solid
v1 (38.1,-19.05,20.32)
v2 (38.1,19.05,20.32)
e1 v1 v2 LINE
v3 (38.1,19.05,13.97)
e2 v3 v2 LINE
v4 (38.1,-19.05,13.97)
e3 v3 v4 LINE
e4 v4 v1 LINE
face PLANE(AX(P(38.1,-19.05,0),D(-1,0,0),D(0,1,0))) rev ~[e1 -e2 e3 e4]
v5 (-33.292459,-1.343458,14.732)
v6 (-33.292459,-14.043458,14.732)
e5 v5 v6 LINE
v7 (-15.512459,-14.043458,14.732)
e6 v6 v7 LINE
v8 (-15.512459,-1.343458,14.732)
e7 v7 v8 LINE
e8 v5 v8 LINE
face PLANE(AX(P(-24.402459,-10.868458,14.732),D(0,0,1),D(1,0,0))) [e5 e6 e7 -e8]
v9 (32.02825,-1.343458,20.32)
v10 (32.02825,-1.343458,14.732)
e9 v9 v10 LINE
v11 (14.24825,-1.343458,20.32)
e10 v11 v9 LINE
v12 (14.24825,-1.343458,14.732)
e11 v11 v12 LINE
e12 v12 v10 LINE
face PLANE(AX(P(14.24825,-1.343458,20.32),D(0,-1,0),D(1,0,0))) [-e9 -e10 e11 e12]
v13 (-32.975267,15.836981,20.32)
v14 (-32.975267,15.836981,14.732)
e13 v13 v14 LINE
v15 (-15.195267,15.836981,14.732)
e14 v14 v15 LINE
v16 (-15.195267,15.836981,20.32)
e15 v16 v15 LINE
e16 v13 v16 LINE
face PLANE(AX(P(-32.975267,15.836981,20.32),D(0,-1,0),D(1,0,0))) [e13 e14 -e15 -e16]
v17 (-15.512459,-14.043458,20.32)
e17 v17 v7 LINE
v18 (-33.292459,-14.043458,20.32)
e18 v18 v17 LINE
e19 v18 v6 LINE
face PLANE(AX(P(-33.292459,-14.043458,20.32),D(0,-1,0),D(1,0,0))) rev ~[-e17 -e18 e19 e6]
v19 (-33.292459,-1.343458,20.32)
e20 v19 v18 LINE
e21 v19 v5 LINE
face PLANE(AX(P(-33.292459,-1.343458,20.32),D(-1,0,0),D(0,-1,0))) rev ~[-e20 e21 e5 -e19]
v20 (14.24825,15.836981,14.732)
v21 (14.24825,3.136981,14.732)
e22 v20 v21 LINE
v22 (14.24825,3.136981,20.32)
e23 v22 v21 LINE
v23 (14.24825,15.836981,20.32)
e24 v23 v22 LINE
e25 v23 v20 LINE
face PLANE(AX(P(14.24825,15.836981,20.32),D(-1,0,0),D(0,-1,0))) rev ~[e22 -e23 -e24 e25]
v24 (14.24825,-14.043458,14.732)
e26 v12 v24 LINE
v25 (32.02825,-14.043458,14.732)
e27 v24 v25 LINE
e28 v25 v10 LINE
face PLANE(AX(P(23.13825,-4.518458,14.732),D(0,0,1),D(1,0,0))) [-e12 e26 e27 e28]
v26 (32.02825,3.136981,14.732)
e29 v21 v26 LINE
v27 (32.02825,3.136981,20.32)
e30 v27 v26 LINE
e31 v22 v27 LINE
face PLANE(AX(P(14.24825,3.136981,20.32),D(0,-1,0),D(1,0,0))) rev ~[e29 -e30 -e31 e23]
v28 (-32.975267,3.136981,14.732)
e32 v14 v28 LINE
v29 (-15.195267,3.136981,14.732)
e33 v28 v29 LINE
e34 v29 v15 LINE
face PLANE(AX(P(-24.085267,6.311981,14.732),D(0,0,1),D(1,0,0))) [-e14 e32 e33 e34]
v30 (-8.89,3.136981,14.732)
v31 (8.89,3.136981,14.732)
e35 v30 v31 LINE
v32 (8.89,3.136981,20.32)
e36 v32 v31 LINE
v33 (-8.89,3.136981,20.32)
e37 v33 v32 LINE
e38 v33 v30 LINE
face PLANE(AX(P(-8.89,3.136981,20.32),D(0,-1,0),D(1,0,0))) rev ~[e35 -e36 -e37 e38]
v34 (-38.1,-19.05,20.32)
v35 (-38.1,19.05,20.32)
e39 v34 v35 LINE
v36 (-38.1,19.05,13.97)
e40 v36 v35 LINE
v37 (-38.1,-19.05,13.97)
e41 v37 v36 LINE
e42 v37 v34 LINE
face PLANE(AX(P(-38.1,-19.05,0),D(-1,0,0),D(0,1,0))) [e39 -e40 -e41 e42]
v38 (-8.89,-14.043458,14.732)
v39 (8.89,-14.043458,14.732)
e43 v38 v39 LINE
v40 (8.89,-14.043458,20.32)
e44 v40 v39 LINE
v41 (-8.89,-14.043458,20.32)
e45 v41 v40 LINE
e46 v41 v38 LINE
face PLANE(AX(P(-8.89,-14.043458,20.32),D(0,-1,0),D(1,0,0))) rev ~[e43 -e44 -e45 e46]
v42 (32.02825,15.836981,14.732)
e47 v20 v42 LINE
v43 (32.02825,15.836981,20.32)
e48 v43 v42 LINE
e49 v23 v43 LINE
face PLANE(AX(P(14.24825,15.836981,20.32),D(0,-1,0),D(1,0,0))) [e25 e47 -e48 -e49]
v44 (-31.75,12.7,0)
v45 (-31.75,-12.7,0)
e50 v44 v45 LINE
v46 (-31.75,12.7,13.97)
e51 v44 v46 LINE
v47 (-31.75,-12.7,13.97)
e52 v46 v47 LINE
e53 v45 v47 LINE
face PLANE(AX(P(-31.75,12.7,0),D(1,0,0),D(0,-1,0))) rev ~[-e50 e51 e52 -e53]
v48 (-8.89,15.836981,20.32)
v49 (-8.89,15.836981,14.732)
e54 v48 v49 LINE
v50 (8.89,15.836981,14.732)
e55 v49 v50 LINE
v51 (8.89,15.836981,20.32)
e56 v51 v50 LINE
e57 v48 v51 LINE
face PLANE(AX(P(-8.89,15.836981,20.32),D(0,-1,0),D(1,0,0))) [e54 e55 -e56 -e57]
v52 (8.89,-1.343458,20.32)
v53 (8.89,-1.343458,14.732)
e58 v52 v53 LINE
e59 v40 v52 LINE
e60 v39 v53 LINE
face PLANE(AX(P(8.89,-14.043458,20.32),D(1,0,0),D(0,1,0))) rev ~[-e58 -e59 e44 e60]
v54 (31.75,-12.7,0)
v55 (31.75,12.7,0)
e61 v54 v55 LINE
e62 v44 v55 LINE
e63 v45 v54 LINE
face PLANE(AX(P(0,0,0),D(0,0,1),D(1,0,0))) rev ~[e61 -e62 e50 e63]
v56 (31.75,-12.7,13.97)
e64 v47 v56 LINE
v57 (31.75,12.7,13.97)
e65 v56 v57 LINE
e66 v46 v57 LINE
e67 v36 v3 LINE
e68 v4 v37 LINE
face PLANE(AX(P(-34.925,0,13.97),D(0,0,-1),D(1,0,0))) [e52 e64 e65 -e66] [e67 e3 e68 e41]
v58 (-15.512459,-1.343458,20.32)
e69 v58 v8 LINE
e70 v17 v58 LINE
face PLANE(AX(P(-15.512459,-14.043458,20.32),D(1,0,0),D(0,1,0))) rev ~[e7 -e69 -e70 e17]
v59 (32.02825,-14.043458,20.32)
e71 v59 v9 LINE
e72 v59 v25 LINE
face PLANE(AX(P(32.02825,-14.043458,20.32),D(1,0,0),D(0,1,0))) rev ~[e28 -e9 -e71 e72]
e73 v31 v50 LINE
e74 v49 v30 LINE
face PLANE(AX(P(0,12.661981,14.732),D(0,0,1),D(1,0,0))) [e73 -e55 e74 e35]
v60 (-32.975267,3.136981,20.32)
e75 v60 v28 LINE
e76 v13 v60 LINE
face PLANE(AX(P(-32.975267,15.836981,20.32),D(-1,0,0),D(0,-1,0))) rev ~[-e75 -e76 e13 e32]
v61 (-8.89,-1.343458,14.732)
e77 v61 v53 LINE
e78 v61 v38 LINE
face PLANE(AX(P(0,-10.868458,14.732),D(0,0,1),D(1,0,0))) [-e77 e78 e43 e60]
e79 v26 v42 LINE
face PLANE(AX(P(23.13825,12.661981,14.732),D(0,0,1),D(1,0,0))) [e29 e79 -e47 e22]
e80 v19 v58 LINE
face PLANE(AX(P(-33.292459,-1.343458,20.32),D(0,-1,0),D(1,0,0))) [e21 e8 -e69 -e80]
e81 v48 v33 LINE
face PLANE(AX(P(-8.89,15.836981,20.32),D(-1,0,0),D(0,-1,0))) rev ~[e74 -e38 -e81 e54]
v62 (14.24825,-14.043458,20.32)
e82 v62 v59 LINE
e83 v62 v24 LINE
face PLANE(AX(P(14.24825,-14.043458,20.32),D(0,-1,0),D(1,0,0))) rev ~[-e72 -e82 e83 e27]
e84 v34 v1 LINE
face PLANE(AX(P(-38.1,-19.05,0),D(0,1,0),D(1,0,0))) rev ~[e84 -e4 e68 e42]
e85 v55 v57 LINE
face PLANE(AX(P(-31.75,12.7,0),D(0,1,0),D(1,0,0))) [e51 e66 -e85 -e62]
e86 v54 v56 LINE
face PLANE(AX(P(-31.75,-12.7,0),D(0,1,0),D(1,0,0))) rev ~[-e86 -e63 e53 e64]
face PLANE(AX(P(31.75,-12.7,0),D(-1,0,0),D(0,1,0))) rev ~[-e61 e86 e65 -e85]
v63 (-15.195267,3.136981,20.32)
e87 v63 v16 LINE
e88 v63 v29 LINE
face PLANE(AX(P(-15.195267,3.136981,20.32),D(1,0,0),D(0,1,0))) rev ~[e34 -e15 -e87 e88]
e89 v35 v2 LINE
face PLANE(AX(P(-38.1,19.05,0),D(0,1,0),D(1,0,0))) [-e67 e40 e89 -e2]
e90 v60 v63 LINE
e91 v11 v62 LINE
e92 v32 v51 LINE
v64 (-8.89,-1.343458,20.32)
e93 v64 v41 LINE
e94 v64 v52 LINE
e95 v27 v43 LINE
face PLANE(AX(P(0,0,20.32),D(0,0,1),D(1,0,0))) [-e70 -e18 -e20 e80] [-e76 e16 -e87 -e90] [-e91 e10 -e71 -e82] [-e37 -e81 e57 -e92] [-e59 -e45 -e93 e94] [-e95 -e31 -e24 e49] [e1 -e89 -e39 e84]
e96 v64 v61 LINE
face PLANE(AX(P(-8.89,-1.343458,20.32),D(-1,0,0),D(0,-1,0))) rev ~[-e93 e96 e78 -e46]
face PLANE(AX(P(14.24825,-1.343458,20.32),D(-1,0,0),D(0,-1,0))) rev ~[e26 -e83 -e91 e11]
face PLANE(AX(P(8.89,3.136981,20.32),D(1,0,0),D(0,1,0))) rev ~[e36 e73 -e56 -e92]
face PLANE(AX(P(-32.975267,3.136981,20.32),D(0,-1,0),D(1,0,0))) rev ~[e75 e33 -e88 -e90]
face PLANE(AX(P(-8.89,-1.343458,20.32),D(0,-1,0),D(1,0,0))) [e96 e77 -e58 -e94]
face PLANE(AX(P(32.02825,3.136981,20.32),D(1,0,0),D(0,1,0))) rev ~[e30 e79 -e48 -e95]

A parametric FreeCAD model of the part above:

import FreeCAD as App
import Part
import Sketcher

V = App.Vector
Q = App.Units.Quantity

doc = App.newDocument("Part")
body = doc.addObject("PartDesign::Body", "Body")

sketch1 = doc.addObject("Sketcher::SketchObject", "Sketch")
body.addObject(sketch1)
sketch1.AttachmentSupport = (doc.XY_Plane, [""])
sketch1.MapMode = "FlatFace"
sketch1.addGeometry([
    Part.LineSegment(V(-38, 19, 0), V(-38, -19, 0)),
    Part.LineSegment(V(-38, -19, 0), V(38, -19, 0)),
    Part.LineSegment(V(38, -19, 0), V(38, 19, 0)),
    Part.LineSegment(V(38, 19, 0), V(-38, 19, 0)),
], False)
sketch1.addConstraint([
    Sketcher.Constraint("Coincident", 0, 2, 1, 1),
    Sketcher.Constraint("Coincident", 1, 2, 2, 1),
    Sketcher.Constraint("Coincident", 2, 2, 3, 1),
    Sketcher.Constraint("Coincident", 3, 2, 0, 1),
    Sketcher.Constraint("Vertical", 0),
    Sketcher.Constraint("Horizontal", 1),
    Sketcher.Constraint("Vertical", 2),
    Sketcher.Constraint("Horizontal", 3),
    Sketcher.Constraint("Symmetric", 0, 2, 2, 2, -1, 1),
    Sketcher.Constraint("DistanceX", 1, 1, 1, 2, Q("3 in")),
    Sketcher.Constraint("DistanceY", 0, 2, 0, 1, Q("1.5 in")),
])
pad1 = doc.addObject("PartDesign::Pad", "Pad")
body.addObject(pad1)
pad1.Profile = sketch1
pad1.Length = Q("0.8 in")

sketch2 = doc.addObject("Sketcher::SketchObject", "Sketch001")
body.addObject(sketch2)
sketch2.AttachmentSupport = (doc.XY_Plane, [""])
sketch2.MapMode = "FlatFace"
sketch2.addGeometry([
    Part.LineSegment(V(-38, -19, 0), V(-38, 19, 0)),
    Part.LineSegment(V(-38, 19, 0), V(38, 19, 0)),
    Part.LineSegment(V(38, 19, 0), V(38, -19, 0)),
    Part.LineSegment(V(38, -19, 0), V(-38, -19, 0)),
    Part.LineSegment(V(-32, 13, 0), V(-32, -13, 0)),
    Part.LineSegment(V(-32, -13, 0), V(32, -13, 0)),
    Part.LineSegment(V(32, -13, 0), V(32, 13, 0)),
    Part.LineSegment(V(32, 13, 0), V(-32, 13, 0)),
], False)
sketch2.addConstraint([
    Sketcher.Constraint("Coincident", 0, 2, 1, 1),
    Sketcher.Constraint("Coincident", 1, 2, 2, 1),
    Sketcher.Constraint("Coincident", 2, 2, 3, 1),
    Sketcher.Constraint("Coincident", 3, 2, 0, 1),
    Sketcher.Constraint("Coincident", 4, 2, 5, 1),
    Sketcher.Constraint("Coincident", 5, 2, 6, 1),
    Sketcher.Constraint("Coincident", 6, 2, 7, 1),
    Sketcher.Constraint("Coincident", 7, 2, 4, 1),
    Sketcher.Constraint("Vertical", 0),
    Sketcher.Constraint("Horizontal", 1),
    Sketcher.Constraint("Vertical", 2),
    Sketcher.Constraint("Horizontal", 3),
    Sketcher.Constraint("Vertical", 4),
    Sketcher.Constraint("Horizontal", 5),
    Sketcher.Constraint("Vertical", 6),
    Sketcher.Constraint("Horizontal", 7),
    Sketcher.Constraint("Symmetric", 0, 2, 2, 2, -1, 1),
    Sketcher.Constraint("Symmetric", 4, 2, 6, 2, -1, 1),
    Sketcher.Constraint("DistanceX", 1, 1, 1, 2, Q("3 in")),
    Sketcher.Constraint("DistanceY", 4, 2, 4, 1, Q("1 in")),
    Sketcher.Constraint("DistanceX", 5, 1, 5, 2, Q("2.5 in")),
    Sketcher.Constraint("DistanceY", 0, 1, 0, 2, Q("1.5 in")),
])
pocket1 = doc.addObject("PartDesign::Pocket", "Pocket")
body.addObject(pocket1)
pocket1.Profile = sketch2
pocket1.Length = Q("0.55 in")
pocket1.Reversed = True

sketch3 = doc.addObject("Sketcher::SketchObject", "Sketch002")
body.addObject(sketch3)
sketch3.AttachmentSupport = (doc.XY_Plane, [""])
sketch3.MapMode = "FlatFace"
sketch3.AttachmentOffset = App.Placement(V(0, 0, 0.8 * 25.4), App.Rotation())
sketch3.addGeometry([
    Part.LineSegment(V(14, 16, 0), V(14, 3, 0)),
    Part.LineSegment(V(14, 3, 0), V(32, 3, 0)),
    Part.LineSegment(V(32, 3, 0), V(32, 16, 0)),
    Part.LineSegment(V(32, 16, 0), V(14, 16, 0)),
    Part.LineSegment(V(14, -1, 0), V(14, -14, 0)),
    Part.LineSegment(V(14, -14, 0), V(32, -14, 0)),
    Part.LineSegment(V(32, -14, 0), V(32, -1, 0)),
    Part.LineSegment(V(32, -1, 0), V(14, -1, 0)),
    Part.LineSegment(V(-9, -14, 0), V(9, -14, 0)),
    Part.LineSegment(V(9, -14, 0), V(9, -1, 0)),
    Part.LineSegment(V(9, -1, 0), V(-9, -1, 0)),
    Part.LineSegment(V(-9, -1, 0), V(-9, -14, 0)),
    Part.LineSegment(V(-33, -14, 0), V(-16, -14, 0)),
    Part.LineSegment(V(-16, -14, 0), V(-16, -1, 0)),
    Part.LineSegment(V(-16, -1, 0), V(-33, -1, 0)),
    Part.LineSegment(V(-33, -1, 0), V(-33, -14, 0)),
    Part.LineSegment(V(-33, 3, 0), V(-15, 3, 0)),
    Part.LineSegment(V(-15, 3, 0), V(-15, 16, 0)),
    Part.LineSegment(V(-15, 16, 0), V(-33, 16, 0)),
    Part.LineSegment(V(-33, 16, 0), V(-33, 3, 0)),
    Part.LineSegment(V(-9, 16, 0), V(-9, 3, 0)),
    Part.LineSegment(V(-9, 3, 0), V(9, 3, 0)),
    Part.LineSegment(V(9, 3, 0), V(9, 16, 0)),
    Part.LineSegment(V(9, 16, 0), V(-9, 16, 0)),
], False)
sketch3.addConstraint([
    Sketcher.Constraint("Coincident", 0, 2, 1, 1),
    Sketcher.Constraint("Coincident", 1, 2, 2, 1),
    Sketcher.Constraint("Coincident", 2, 2, 3, 1),
    Sketcher.Constraint("Coincident", 3, 2, 0, 1),
    Sketcher.Constraint("Coincident", 4, 2, 5, 1),
    Sketcher.Constraint("Coincident", 5, 2, 6, 1),
    Sketcher.Constraint("Coincident", 6, 2, 7, 1),
    Sketcher.Constraint("Coincident", 7, 2, 4, 1),
    Sketcher.Constraint("Coincident", 8, 2, 9, 1),
    Sketcher.Constraint("Coincident", 9, 2, 10, 1),
    Sketcher.Constraint("Coincident", 10, 2, 11, 1),
    Sketcher.Constraint("Coincident", 11, 2, 8, 1),
    Sketcher.Constraint("Coincident", 12, 2, 13, 1),
    Sketcher.Constraint("Coincident", 13, 2, 14, 1),
    Sketcher.Constraint("Coincident", 14, 2, 15, 1),
    Sketcher.Constraint("Coincident", 15, 2, 12, 1),
    Sketcher.Constraint("Coincident", 16, 2, 17, 1),
    Sketcher.Constraint("Coincident", 17, 2, 18, 1),
    Sketcher.Constraint("Coincident", 18, 2, 19, 1),
    Sketcher.Constraint("Coincident", 19, 2, 16, 1),
    Sketcher.Constraint("Coincident", 20, 2, 21, 1),
    Sketcher.Constraint("Coincident", 21, 2, 22, 1),
    Sketcher.Constraint("Coincident", 22, 2, 23, 1),
    Sketcher.Constraint("Coincident", 23, 2, 20, 1),
    Sketcher.Constraint("Vertical", 0),
    Sketcher.Constraint("Horizontal", 1),
    Sketcher.Constraint("Vertical", 2),
    Sketcher.Constraint("Horizontal", 3),
    Sketcher.Constraint("Vertical", 4),
    Sketcher.Constraint("Horizontal", 5),
    Sketcher.Constraint("Vertical", 6),
    Sketcher.Constraint("Horizontal", 7),
    Sketcher.Constraint("Horizontal", 8),
    Sketcher.Constraint("Vertical", 9),
    Sketcher.Constraint("Horizontal", 10),
    Sketcher.Constraint("Vertical", 11),
    Sketcher.Constraint("Horizontal", 12),
    Sketcher.Constraint("Vertical", 13),
    Sketcher.Constraint("Horizontal", 14),
    Sketcher.Constraint("Vertical", 15),
    Sketcher.Constraint("Horizontal", 16),
    Sketcher.Constraint("Vertical", 17),
    Sketcher.Constraint("Horizontal", 18),
    Sketcher.Constraint("Vertical", 19),
    Sketcher.Constraint("Vertical", 20),
    Sketcher.Constraint("Horizontal", 21),
    Sketcher.Constraint("Vertical", 22),
    Sketcher.Constraint("Horizontal", 23),
    Sketcher.Constraint("Horizontal", 5, 2, 8, 2),
    Sketcher.Constraint("Horizontal", 7, 2, 9, 2),
    Sketcher.Constraint("Horizontal", 11, 2, 12, 2),
    Sketcher.Constraint("Horizontal", 10, 2, 13, 2),
    Sketcher.Constraint("Horizontal", 1, 2, 16, 2),
    Sketcher.Constraint("Horizontal", 3, 2, 17, 2),
    Sketcher.Constraint("Horizontal", 19, 2, 20, 2),
    Sketcher.Constraint("Horizontal", 18, 2, 22, 2),
    Sketcher.Constraint("Vertical", 3, 2, 4, 2),
    Sketcher.Constraint("Vertical", 2, 2, 5, 2),
    Sketcher.Constraint("Vertical", 11, 2, 20, 2),
    Sketcher.Constraint("Vertical", 9, 2, 21, 2),
    Sketcher.Constraint("Equal", 7, 8),
    Sketcher.Constraint("Equal", 10, 12),
    Sketcher.Constraint("Equal", 14, 16),
    Sketcher.Constraint("Equal", 2, 4),
    Sketcher.Constraint("DistanceX", 1, 1, 1, 2, Q("0.7 in")),
    Sketcher.Constraint("DistanceY", 0, 2, 0, 1, Q("0.5 in")),
    Sketcher.Constraint("DistanceX", -1, 1, 8, 2, Q("0.35 in")),
    Sketcher.Constraint("DistanceX", -1, 1, 0, 2, Q("14.24825 mm")),
    Sketcher.Constraint("DistanceY", -1, 1, 0, 2, Q("3.136981 mm")),
    Sketcher.Constraint("DistanceX", 12, 2, -1, 1, Q("15.512459 mm")),
    Sketcher.Constraint("DistanceY", 4, 2, 0, 2, Q("17.180439 mm")),
    Sketcher.Constraint("DistanceX", 14, 2, 16, 2, Q("18.097192 mm")),
])
pocket2 = doc.addObject("PartDesign::Pocket", "Pocket001")
body.addObject(pocket2)
pocket2.Profile = sketch3
pocket2.Length = Q("0.22 in")

doc.recompute()
